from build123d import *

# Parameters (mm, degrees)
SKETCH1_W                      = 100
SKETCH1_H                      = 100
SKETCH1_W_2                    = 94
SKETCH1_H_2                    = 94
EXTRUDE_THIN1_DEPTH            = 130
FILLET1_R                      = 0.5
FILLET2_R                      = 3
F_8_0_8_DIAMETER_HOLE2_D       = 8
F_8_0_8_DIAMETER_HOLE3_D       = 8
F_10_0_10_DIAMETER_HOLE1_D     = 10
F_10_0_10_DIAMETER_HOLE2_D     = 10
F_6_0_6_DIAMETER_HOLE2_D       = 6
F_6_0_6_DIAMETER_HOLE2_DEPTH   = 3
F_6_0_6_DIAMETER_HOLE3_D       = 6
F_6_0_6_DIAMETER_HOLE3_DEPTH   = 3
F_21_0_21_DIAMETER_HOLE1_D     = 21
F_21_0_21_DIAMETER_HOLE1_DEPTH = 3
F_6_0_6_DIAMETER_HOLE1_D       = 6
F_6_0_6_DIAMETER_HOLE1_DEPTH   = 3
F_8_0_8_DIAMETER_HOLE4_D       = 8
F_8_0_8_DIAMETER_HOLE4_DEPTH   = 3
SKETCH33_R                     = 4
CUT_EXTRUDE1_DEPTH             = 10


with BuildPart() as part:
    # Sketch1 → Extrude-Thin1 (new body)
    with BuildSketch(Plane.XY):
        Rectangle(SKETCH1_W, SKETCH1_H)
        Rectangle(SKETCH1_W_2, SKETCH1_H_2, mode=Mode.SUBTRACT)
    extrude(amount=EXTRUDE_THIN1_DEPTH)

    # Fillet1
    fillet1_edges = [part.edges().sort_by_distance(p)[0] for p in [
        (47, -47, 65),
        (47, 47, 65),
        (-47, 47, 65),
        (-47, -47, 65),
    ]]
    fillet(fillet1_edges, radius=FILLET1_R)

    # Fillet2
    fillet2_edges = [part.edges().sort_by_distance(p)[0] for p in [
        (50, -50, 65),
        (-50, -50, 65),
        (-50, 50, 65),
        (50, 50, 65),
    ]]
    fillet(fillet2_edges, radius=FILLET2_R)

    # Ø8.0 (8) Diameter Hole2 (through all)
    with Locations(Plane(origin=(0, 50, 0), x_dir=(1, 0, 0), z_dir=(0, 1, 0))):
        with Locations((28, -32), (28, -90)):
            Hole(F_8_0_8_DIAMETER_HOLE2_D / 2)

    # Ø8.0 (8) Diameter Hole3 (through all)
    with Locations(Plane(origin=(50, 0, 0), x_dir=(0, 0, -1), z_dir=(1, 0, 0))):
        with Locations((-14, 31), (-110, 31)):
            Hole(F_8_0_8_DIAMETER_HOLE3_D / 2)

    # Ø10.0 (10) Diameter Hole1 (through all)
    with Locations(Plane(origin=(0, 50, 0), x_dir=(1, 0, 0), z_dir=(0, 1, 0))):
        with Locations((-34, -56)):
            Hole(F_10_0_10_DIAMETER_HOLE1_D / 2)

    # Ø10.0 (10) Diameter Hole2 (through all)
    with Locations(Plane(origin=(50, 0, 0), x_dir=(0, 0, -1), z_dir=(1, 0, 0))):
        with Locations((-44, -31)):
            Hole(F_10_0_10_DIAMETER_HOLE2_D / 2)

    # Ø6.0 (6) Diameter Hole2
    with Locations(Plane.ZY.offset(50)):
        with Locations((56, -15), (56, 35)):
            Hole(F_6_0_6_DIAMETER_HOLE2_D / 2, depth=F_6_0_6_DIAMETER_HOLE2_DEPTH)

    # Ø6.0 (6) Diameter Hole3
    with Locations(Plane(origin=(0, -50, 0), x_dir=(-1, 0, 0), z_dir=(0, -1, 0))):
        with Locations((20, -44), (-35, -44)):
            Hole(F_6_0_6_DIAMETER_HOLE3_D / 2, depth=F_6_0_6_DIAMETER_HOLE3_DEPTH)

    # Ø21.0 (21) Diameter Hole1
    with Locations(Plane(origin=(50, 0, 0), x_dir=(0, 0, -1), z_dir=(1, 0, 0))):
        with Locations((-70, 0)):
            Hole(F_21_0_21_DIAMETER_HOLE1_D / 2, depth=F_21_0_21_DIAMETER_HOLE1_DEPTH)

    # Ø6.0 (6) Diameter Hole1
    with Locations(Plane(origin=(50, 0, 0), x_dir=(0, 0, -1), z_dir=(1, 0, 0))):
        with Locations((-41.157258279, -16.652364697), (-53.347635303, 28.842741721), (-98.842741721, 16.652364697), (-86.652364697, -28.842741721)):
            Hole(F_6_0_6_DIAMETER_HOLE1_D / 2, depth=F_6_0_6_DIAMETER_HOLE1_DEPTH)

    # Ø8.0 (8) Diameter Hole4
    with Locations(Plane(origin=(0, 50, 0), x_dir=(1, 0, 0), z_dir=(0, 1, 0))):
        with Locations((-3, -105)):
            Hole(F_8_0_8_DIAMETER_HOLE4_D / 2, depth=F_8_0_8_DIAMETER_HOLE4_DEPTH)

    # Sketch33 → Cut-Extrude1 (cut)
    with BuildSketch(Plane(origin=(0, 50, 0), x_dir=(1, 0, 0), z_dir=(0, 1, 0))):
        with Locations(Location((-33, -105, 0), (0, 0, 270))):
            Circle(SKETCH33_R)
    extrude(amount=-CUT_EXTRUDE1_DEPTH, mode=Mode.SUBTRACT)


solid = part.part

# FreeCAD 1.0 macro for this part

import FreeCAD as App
import Part
import Sketcher

V = App.Vector
Q = App.Units.Quantity


def edges_at(feature, points):
    """Names of the edges that pass closest to the given points."""
    edges = feature.Shape.Edges
    near = lambda p: min(range(len(edges)), key=lambda i: edges[i].distToShape(Part.Vertex(*p))[0])
    return sorted({f"Edge{near(p) + 1}" for p in points})

doc = App.newDocument("Part")
body = doc.addObject("PartDesign::Body", "Body")

sketch1 = body.newObject("Sketcher::SketchObject", "Sketch")
sketch1.AttachmentSupport = (doc.getObject("XY_Plane"), [""])
sketch1.MapMode = "FlatFace"
sketch1.addGeometry(Part.LineSegment(V(-50, 50, 0), V(-50, -50, 0)), False)
sketch1.addGeometry(Part.LineSegment(V(-50, -50, 0), V(50, -50, 0)), False)
sketch1.addGeometry(Part.LineSegment(V(50, -50, 0), V(50, 50, 0)), False)
sketch1.addGeometry(Part.LineSegment(V(50, 50, 0), V(-50, 50, 0)), False)
sketch1.addGeometry(Part.LineSegment(V(47, -47, 0), V(-47, -47, 0)), False)
sketch1.addGeometry(Part.LineSegment(V(-47, -47, 0), V(-47, 47, 0)), False)
sketch1.addGeometry(Part.LineSegment(V(-47, 47, 0), V(47, 47, 0)), False)
sketch1.addGeometry(Part.LineSegment(V(47, 47, 0), V(47, -47, 0)), False)
sketch1.addConstraint(Sketcher.Constraint("Coincident", 0, 2, 1, 1))
sketch1.addConstraint(Sketcher.Constraint("Coincident", 1, 2, 2, 1))
sketch1.addConstraint(Sketcher.Constraint("Coincident", 2, 2, 3, 1))
sketch1.addConstraint(Sketcher.Constraint("Coincident", 3, 2, 0, 1))
sketch1.addConstraint(Sketcher.Constraint("Coincident", 4, 2, 5, 1))
sketch1.addConstraint(Sketcher.Constraint("Coincident", 5, 2, 6, 1))
sketch1.addConstraint(Sketcher.Constraint("Coincident", 6, 2, 7, 1))
sketch1.addConstraint(Sketcher.Constraint("Coincident", 7, 2, 4, 1))
sketch1.addConstraint(Sketcher.Constraint("Vertical", 0))
sketch1.addConstraint(Sketcher.Constraint("Horizontal", 1))
sketch1.addConstraint(Sketcher.Constraint("Vertical", 2))
sketch1.addConstraint(Sketcher.Constraint("Horizontal", 3))
sketch1.addConstraint(Sketcher.Constraint("Horizontal", 4))
sketch1.addConstraint(Sketcher.Constraint("Vertical", 5))
sketch1.addConstraint(Sketcher.Constraint("Horizontal", 6))
sketch1.addConstraint(Sketcher.Constraint("Vertical", 7))
sketch1.addConstraint(Sketcher.Constraint("Symmetric", 0, 2, 2, 2, -1, 1))
sketch1.addConstraint(Sketcher.Constraint("Symmetric", 4, 2, 6, 2, -1, 1))
sketch1.addConstraint(Sketcher.Constraint("Equal", 3, 0))
sketch1.addConstraint(Sketcher.Constraint("Equal", 6, 5))
sketch1.addConstraint(Sketcher.Constraint("DistanceX", 1, 1, 1, 2, Q("100 mm")))
sketch1.addConstraint(Sketcher.Constraint("DistanceX", 4, 2, 4, 1, Q("94 mm")))
pad1 = body.newObject("PartDesign::Pad", "Pad")
pad1.Profile = sketch1
pad1.Length = 130
doc.recompute()

fillet = body.newObject("PartDesign::Fillet", "Fillet")
fillet.Base = (pad1, edges_at(pad1, [
    (47, -47, 65),
    (47, 47, 65),
    (-47, 47, 65),
    (-47, -47, 65),
]))
fillet.Radius = 0.5
doc.recompute()

fillet2 = body.newObject("PartDesign::Fillet", "Fillet001")
fillet2.Base = (fillet, edges_at(fillet, [
    (50, -50, 65),
    (-50, -50, 65),
    (-50, 50, 65),
    (50, 50, 65),
]))
fillet2.Radius = 3

sketch2 = body.newObject("Sketcher::SketchObject", "Sketch001")
sketch2.AttachmentSupport = (doc.getObject("XZ_Plane"), [""])
sketch2.MapMode = "FlatFace"
sketch2.AttachmentOffset = App.Placement(V(0, 0, -50), App.Rotation())
sketch2.addGeometry(Part.Circle(V(28, 32, 0), V(0, 0, 1), 4), False)
sketch2.addGeometry(Part.Circle(V(28, 90, 0), V(0, 0, 1), 4), False)
sketch2.addConstraint(Sketcher.Constraint("Equal", 0, 1))
sketch2.addConstraint(Sketcher.Constraint("Vertical", 0, 3, 1, 3))
sketch2.addConstraint(Sketcher.Constraint("Diameter", 0, Q("8 mm")))
sketch2.addConstraint(Sketcher.Constraint("DistanceX", -1, 1, 0, 3, Q("28 mm")))
sketch2.addConstraint(Sketcher.Constraint("DistanceY", -1, 1, 0, 3, Q("32 mm")))
sketch2.addConstraint(Sketcher.Constraint("DistanceY", -1, 1, 1, 3, Q("90 mm")))
doc.recompute()
hole = body.newObject("PartDesign::Hole", "Hole")
hole.Profile = sketch2
hole.ThreadType = "None"
hole.Diameter = 8
hole.DepthType = "ThroughAll"
hole.Reversed = True

sketch3 = body.newObject("Sketcher::SketchObject", "Sketch002")
sketch3.AttachmentSupport = (doc.getObject("YZ_Plane"), [""])
sketch3.MapMode = "FlatFace"
sketch3.AttachmentOffset = App.Placement(V(0, 0, 50), App.Rotation())
sketch3.addGeometry(Part.Circle(V(31, 14, 0), V(0, 0, 1), 4), False)
sketch3.addGeometry(Part.Circle(V(31, 110, 0), V(0, 0, 1), 4), False)
sketch3.addConstraint(Sketcher.Constraint("Equal", 0, 1))
sketch3.addConstraint(Sketcher.Constraint("Vertical", 0, 3, 1, 3))
sketch3.addConstraint(Sketcher.Constraint("Diameter", 0, Q("8 mm")))
sketch3.addConstraint(Sketcher.Constraint("DistanceX", -1, 1, 0, 3, Q("31 mm")))
sketch3.addConstraint(Sketcher.Constraint("DistanceY", -1, 1, 0, 3, Q("14 mm")))
sketch3.addConstraint(Sketcher.Constraint("DistanceY", -1, 1, 1, 3, Q("110 mm")))
doc.recompute()
hole2 = body.newObject("PartDesign::Hole", "Hole001")
hole2.Profile = sketch3
hole2.ThreadType = "None"
hole2.Diameter = 8
hole2.DepthType = "ThroughAll"

sketch4 = body.newObject("Sketcher::SketchObject", "Sketch003")
sketch4.AttachmentSupport = (doc.getObject("XZ_Plane"), [""])
sketch4.MapMode = "FlatFace"
sketch4.AttachmentOffset = App.Placement(V(0, 0, -50), App.Rotation())
sketch4.addGeometry(Part.Circle(V(-34, 56, 0), V(0, 0, 1), 5), False)
sketch4.addConstraint(Sketcher.Constraint("Diameter", 0, Q("10 mm")))
sketch4.addConstraint(Sketcher.Constraint("DistanceX", 0, 3, -1, 1, Q("34 mm")))
sketch4.addConstraint(Sketcher.Constraint("DistanceY", -1, 1, 0, 3, Q("56 mm")))
doc.recompute()
hole3 = body.newObject("PartDesign::Hole", "Hole002")
hole3.Profile = sketch4
hole3.ThreadType = "None"
hole3.Diameter = 10
hole3.DepthType = "ThroughAll"
hole3.Reversed = True

sketch5 = body.newObject("Sketcher::SketchObject", "Sketch004")
sketch5.AttachmentSupport = (doc.getObject("YZ_Plane"), [""])
sketch5.MapMode = "FlatFace"
sketch5.AttachmentOffset = App.Placement(V(0, 0, 50), App.Rotation())
sketch5.addGeometry(Part.Circle(V(-31, 44, 0), V(0, 0, 1), 5), False)
sketch5.addConstraint(Sketcher.Constraint("Diameter", 0, Q("10 mm")))
sketch5.addConstraint(Sketcher.Constraint("DistanceX", 0, 3, -1, 1, Q("31 mm")))
sketch5.addConstraint(Sketcher.Constraint("DistanceY", -1, 1, 0, 3, Q("44 mm")))
doc.recompute()
hole4 = body.newObject("PartDesign::Hole", "Hole003")
hole4.Profile = sketch5
hole4.ThreadType = "None"
hole4.Diameter = 10
hole4.DepthType = "ThroughAll"

sketch6 = body.newObject("Sketcher::SketchObject", "Sketch005")
sketch6.AttachmentSupport = (doc.getObject("YZ_Plane"), [""])
sketch6.MapMode = "FlatFace"
sketch6.AttachmentOffset = App.Placement(V(0, 0, -50), App.Rotation())
sketch6.addGeometry(Part.Circle(V(-15, 56, 0), V(0, 0, 1), 3), False)
sketch6.addGeometry(Part.Circle(V(35, 56, 0), V(0, 0, 1), 3), False)
sketch6.addConstraint(Sketcher.Constraint("Equal", 0, 1))
sketch6.addConstraint(Sketcher.Constraint("Horizontal", 0, 3, 1, 3))
sketch6.addConstraint(Sketcher.Constraint("Diameter", 0, Q("6 mm")))
sketch6.addConstraint(Sketcher.Constraint("DistanceX", 0, 3, -1, 1, Q("15 mm")))
sketch6.addConstraint(Sketcher.Constraint("DistanceY", -1, 1, 0, 3, Q("56 mm")))
sketch6.addConstraint(Sketcher.Constraint("DistanceX", -1, 1, 1, 3, Q("35 mm")))
doc.recompute()
hole5 = body.newObject("PartDesign::Hole", "Hole004")
hole5.Profile = sketch6
hole5.ThreadType = "None"
hole5.Diameter = 6
hole5.DepthType = "Dimension"
hole5.Depth = 3
hole5.DrillPoint = "Flat"
hole5.Reversed = True

sketch7 = body.newObject("Sketcher::SketchObject", "Sketch006")
sketch7.AttachmentSupport = (doc.getObject("XZ_Plane"), [""])
sketch7.MapMode = "FlatFace"
sketch7.AttachmentOffset = App.Placement(V(0, 0, 50), App.Rotation())
sketch7.addGeometry(Part.Circle(V(-20, 44, 0), V(0, 0, 1), 3), False)
sketch7.addGeometry(Part.Circle(V(35, 44, 0), V(0, 0, 1), 3), False)
sketch7.addConstraint(Sketcher.Constraint("Equal", 0, 1))
sketch7.addConstraint(Sketcher.Constraint("Horizontal", 0, 3, 1, 3))
sketch7.addConstraint(Sketcher.Constraint("Diameter", 0, Q("6 mm")))
sketch7.addConstraint(Sketcher.Constraint("DistanceX", 0, 3, -1, 1, Q("20 mm")))
sketch7.addConstraint(Sketcher.Constraint("DistanceY", -1, 1, 0, 3, Q("44 mm")))
sketch7.addConstraint(Sketcher.Constraint("DistanceX", -1, 1, 1, 3, Q("35 mm")))
doc.recompute()
hole6 = body.newObject("PartDesign::Hole", "Hole005")
hole6.Profile = sketch7
hole6.ThreadType = "None"
hole6.Diameter = 6
hole6.DepthType = "Dimension"
hole6.Depth = 3
hole6.DrillPoint = "Flat"

sketch8 = body.newObject("Sketcher::SketchObject", "Sketch007")
sketch8.AttachmentSupport = (doc.getObject("YZ_Plane"), [""])
sketch8.MapMode = "FlatFace"
sketch8.AttachmentOffset = App.Placement(V(0, 0, 50), App.Rotation())
sketch8.addGeometry(Part.Circle(V(0, 70, 0), V(0, 0, 1), 10), False)
sketch8.addConstraint(Sketcher.Constraint("PointOnObject", 0, 3, -2))
sketch8.addConstraint(Sketcher.Constraint("Diameter", 0, Q("21 mm")))
sketch8.addConstraint(Sketcher.Constraint("DistanceY", -1, 1, 0, 3, Q("70 mm")))
doc.recompute()
hole7 = body.newObject("PartDesign::Hole", "Hole006")
hole7.Profile = sketch8
hole7.ThreadType = "None"
hole7.Diameter = 21
hole7.DepthType = "Dimension"
hole7.Depth = 3
hole7.DrillPoint = "Flat"

sketch9 = body.newObject("Sketcher::SketchObject", "Sketch008")
sketch9.AttachmentSupport = (doc.getObject("YZ_Plane"), [""])
sketch9.MapMode = "FlatFace"
sketch9.AttachmentOffset = App.Placement(V(0, 0, 50), App.Rotation())
sketch9.addGeometry(Part.Circle(V(-16.7, 41.2, 0), V(0, 0, 1), 3), False)
sketch9.addGeometry(Part.Circle(V(28.8, 53.3, 0), V(0, 0, 1), 3), False)
sketch9.addGeometry(Part.Circle(V(16.7, 98.8, 0), V(0, 0, 1), 3), False)
sketch9.addGeometry(Part.Circle(V(-28.8, 86.7, 0), V(0, 0, 1), 3), False)
sketch9.addConstraint(Sketcher.Constraint("Equal", 0, 1))
sketch9.addConstraint(Sketcher.Constraint("Equal", 1, 2))
sketch9.addConstraint(Sketcher.Constraint("Equal", 2, 3))
sketch9.addConstraint(Sketcher.Constraint("Diameter", 0, Q("6 mm")))
sketch9.addConstraint(Sketcher.Constraint("DistanceY", -1, 1, 0, 3, Q("41.157258 mm")))
sketch9.addConstraint(Sketcher.Constraint("DistanceX", -1, 1, 1, 3, Q("28.842742 mm")))
sketch9.addConstraint(Sketcher.Constraint("DistanceY", -1, 1, 2, 3, Q("98.842742 mm")))
sketch9.addConstraint(Sketcher.Constraint("DistanceX", 3, 3, -1, 1, Q("28.842742 mm")))
sketch9.addConstraint(Sketcher.Constraint("DistanceX", 0, 3, 2, 3, Q("33.304729 mm")))
sketch9.addConstraint(Sketcher.Constraint("DistanceY", 1, 3, 3, 3, Q("33.304729 mm")))
sketch9.addConstraint(Sketcher.Constraint("DistanceX", 0, 3, -1, 1, Q("16.652365 mm")))
sketch9.addConstraint(Sketcher.Constraint("DistanceY", -1, 1, 1, 3, Q("53.347635 mm")))
doc.recompute()
hole8 = body.newObject("PartDesign::Hole", "Hole007")
hole8.Profile = sketch9
hole8.ThreadType = "None"
hole8.Diameter = 6
hole8.DepthType = "Dimension"
hole8.Depth = 3
hole8.DrillPoint = "Flat"

sketch10 = body.newObject("Sketcher::SketchObject", "Sketch009")
sketch10.AttachmentSupport = (doc.getObject("XZ_Plane"), [""])
sketch10.MapMode = "FlatFace"
sketch10.AttachmentOffset = App.Placement(V(0, 0, -50), App.Rotation())
sketch10.addGeometry(Part.Circle(V(-3, 105, 0), V(0, 0, 1), 4), False)
sketch10.addConstraint(Sketcher.Constraint("Diameter", 0, Q("8 mm")))
sketch10.addConstraint(Sketcher.Constraint("DistanceX", 0, 3, -1, 1, Q("3 mm")))
sketch10.addConstraint(Sketcher.Constraint("DistanceY", -1, 1, 0, 3, Q("105 mm")))
doc.recompute()
hole9 = body.newObject("PartDesign::Hole", "Hole008")
hole9.Profile = sketch10
hole9.ThreadType = "None"
hole9.Diameter = 8
hole9.DepthType = "Dimension"
hole9.Depth = 3
hole9.DrillPoint = "Flat"
hole9.Reversed = True

sketch11 = body.newObject("Sketcher::SketchObject", "Sketch010")
sketch11.AttachmentSupport = (doc.getObject("XZ_Plane"), [""])
sketch11.MapMode = "FlatFace"
sketch11.AttachmentOffset = App.Placement(V(0, 0, -50), App.Rotation())
sketch11.addGeometry(Part.Circle(V(-33, 105, 0), V(0, 0, 1), 4), False)
sketch11.addConstraint(Sketcher.Constraint("Diameter", 0, Q("8 mm")))
sketch11.addConstraint(Sketcher.Constraint("DistanceX", 0, 3, -1, 1, Q("33 mm")))
sketch11.addConstraint(Sketcher.Constraint("DistanceY", -1, 1, 0, 3, Q("105 mm")))
pocket1 = body.newObject("PartDesign::Pocket", "Pocket")
pocket1.Profile = sketch11
pocket1.Length = 10
pocket1.Reversed = True

doc.recompute()
